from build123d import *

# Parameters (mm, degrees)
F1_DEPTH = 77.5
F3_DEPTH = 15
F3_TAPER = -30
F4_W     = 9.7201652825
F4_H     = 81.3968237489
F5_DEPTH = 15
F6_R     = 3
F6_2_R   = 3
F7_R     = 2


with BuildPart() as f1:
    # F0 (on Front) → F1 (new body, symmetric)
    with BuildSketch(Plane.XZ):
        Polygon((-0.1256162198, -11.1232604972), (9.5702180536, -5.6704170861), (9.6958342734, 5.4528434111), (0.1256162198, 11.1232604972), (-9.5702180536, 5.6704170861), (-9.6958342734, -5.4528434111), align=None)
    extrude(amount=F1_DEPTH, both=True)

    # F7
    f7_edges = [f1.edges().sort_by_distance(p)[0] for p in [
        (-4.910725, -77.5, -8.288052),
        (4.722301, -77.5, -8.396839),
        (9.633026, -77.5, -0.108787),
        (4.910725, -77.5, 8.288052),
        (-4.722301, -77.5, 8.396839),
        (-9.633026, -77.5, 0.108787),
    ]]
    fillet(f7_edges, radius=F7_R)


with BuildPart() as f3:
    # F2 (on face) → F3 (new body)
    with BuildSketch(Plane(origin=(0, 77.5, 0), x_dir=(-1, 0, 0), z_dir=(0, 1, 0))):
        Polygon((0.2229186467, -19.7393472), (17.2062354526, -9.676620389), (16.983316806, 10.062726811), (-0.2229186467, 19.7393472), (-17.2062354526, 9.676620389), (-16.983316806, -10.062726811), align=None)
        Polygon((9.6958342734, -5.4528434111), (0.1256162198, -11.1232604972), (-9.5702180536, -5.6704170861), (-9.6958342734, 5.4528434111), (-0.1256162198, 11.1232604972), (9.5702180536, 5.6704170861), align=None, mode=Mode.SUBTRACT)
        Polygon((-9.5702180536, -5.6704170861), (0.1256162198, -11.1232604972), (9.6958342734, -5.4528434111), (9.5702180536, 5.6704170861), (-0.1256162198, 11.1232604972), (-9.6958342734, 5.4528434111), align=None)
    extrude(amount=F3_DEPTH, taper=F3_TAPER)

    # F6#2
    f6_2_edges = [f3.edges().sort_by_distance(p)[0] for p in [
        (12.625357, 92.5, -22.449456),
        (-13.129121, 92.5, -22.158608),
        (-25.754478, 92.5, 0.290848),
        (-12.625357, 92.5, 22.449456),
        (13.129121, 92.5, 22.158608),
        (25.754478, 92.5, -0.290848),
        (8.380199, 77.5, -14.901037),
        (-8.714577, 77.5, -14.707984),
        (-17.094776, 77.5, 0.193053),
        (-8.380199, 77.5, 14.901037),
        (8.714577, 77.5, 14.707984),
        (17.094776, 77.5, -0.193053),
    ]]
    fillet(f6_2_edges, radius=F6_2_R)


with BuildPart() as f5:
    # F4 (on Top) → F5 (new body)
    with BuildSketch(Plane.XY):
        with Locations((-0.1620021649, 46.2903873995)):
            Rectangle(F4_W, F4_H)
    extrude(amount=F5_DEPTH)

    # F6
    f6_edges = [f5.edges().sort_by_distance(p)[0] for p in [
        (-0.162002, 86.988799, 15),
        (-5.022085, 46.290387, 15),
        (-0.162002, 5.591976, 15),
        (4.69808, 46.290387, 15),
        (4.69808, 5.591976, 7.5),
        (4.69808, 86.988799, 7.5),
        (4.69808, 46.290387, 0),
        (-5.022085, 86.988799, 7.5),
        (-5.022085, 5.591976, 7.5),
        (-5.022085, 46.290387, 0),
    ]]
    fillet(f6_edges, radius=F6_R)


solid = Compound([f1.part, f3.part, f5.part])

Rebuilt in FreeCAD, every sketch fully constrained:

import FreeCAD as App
import Part
import Sketcher

V = App.Vector


def edges_at(feature, points):
    """Names of the edges that pass closest to the given points."""
    edges = feature.Shape.Edges
    near = lambda p: min(range(len(edges)), key=lambda i: edges[i].distToShape(Part.Vertex(*p))[0])
    return sorted({f"Edge{near(p) + 1}" for p in points})

doc = App.newDocument("Part")
body = doc.addObject("PartDesign::Body", "Body")

# Sketch on XZ plane
sketch1 = body.newObject("Sketcher::SketchObject", "Sketch")
sketch1.AttachmentSupport = (doc.getObject("XZ_Plane"), [""])
sketch1.MapMode = "FlatFace"
sketch1.addGeometry([
    Part.LineSegment(V(0, -11, 0), V(10, -6, 0)),  # 0
    Part.LineSegment(V(10, -6, 0), V(10, 5, 0)),  # 1
    Part.LineSegment(V(10, 5, 0), V(0, 11, 0)),  # 2
    Part.LineSegment(V(0, 11, 0), V(-10, 6, 0)),  # 3
    Part.LineSegment(V(-10, 6, 0), V(-10, -5, 0)),  # 4
    Part.LineSegment(V(-10, -5, 0), V(0, -11, 0)),  # 5
], False)
sketch1.addConstraint([
    Sketcher.Constraint("Coincident", 0, 2, 1, 1),
    Sketcher.Constraint("Coincident", 1, 2, 2, 1),
    Sketcher.Constraint("Coincident", 2, 2, 3, 1),
    Sketcher.Constraint("Coincident", 3, 2, 4, 1),
    Sketcher.Constraint("Coincident", 4, 2, 5, 1),
    Sketcher.Constraint("Coincident", 5, 2, 0, 1),
    Sketcher.Constraint("Symmetric", 0, 2, 3, 2, -1, 1),
    Sketcher.Constraint("Symmetric", 1, 2, 4, 2, -1, 1),
    Sketcher.Constraint("Symmetric", 2, 2, 5, 2, -1, 1),
    Sketcher.Constraint("Equal", 0, 1),
    Sketcher.Constraint("Equal", 1, 2),
    Sketcher.Constraint("DistanceX", 2, 2, 0, 2, 9.444602),
    Sketcher.Constraint("Distance", 0, 11.12397),
    Sketcher.Constraint("DistanceX", -1, 1, 0, 2, 9.570218),
    Sketcher.Constraint("DistanceY", -1, 1, 2, 2, 11.12326),
])
pad1 = body.newObject("PartDesign::Pad", "Pad")
pad1.Profile = sketch1
pad1.Length = 155
pad1.Midplane = True
doc.recompute()

fillet = body.newObject("PartDesign::Fillet", "Fillet")
fillet.Base = (pad1, edges_at(pad1, [
    (-4.911, -77.5, -8.288),
    (4.722, -77.5, -8.397),
    (9.633, -77.5, -0.109),
    (4.911, -77.5, 8.288),
    (-4.722, -77.5, 8.397),
    (-9.633, -77.5, 0.109),
]))
fillet.Radius = 2
body2 = doc.addObject("PartDesign::Body", "Body001")

# Sketch on XZ plane
sketch2 = body2.newObject("Sketcher::SketchObject", "Sketch001")
sketch2.AttachmentSupport = (doc.getObject("XZ_Plane001"), [""])
sketch2.MapMode = "FlatFace"
sketch2.AttachmentOffset = App.Placement(V(0, 0, -77.5), App.Rotation())
sketch2.addGeometry([
    Part.LineSegment(V(0, -20, 0), V(-17, -10, 0)),  # 0
    Part.LineSegment(V(-17, -10, 0), V(-17, 10, 0)),  # 1
    Part.LineSegment(V(-17, 10, 0), V(0, 20, 0)),  # 2
    Part.LineSegment(V(0, 20, 0), V(17, 10, 0)),  # 3
    Part.LineSegment(V(17, 10, 0), V(17, -10, 0)),  # 4
    Part.LineSegment(V(17, -10, 0), V(0, -20, 0)),  # 5
], False)
sketch2.addConstraint([
    Sketcher.Constraint("Coincident", 0, 2, 1, 1),
    Sketcher.Constraint("Coincident", 1, 2, 2, 1),
    Sketcher.Constraint("Coincident", 2, 2, 3, 1),
    Sketcher.Constraint("Coincident", 3, 2, 4, 1),
    Sketcher.Constraint("Coincident", 4, 2, 5, 1),
    Sketcher.Constraint("Coincident", 5, 2, 0, 1),
    Sketcher.Constraint("Symmetric", 0, 2, 3, 2, -1, 1),
    Sketcher.Constraint("Symmetric", 1, 2, 4, 2, -1, 1),
    Sketcher.Constraint("Symmetric", 2, 2, 5, 2, -1, 1),
    Sketcher.Constraint("Equal", 0, 1),
    Sketcher.Constraint("Equal", 1, 2),
    Sketcher.Constraint("DistanceX", 2, 2, 4, 2, 16.760398),
    Sketcher.Constraint("DistanceY", 0, 2, -1, 1, 9.67662),
    Sketcher.Constraint("DistanceX", -1, 1, 2, 2, 0.222919),
    Sketcher.Constraint("DistanceX", 0, 2, 1, 2, 0.222919),
])
pad2 = body2.newObject("PartDesign::Pad", "Pad001")
pad2.Profile = sketch2
pad2.Length = 15
pad2.Reversed = True
pad2.TaperAngle = 30
doc.recompute()

fillet2 = body2.newObject("PartDesign::Fillet", "Fillet001")
fillet2.Base = (pad2, edges_at(pad2, [
    (12.625, 92.5, -22.449),
    (-13.129, 92.5, -22.159),
    (-25.754, 92.5, 0.291),
    (-12.625, 92.5, 22.449),
    (13.129, 92.5, 22.159),
    (25.754, 92.5, -0.291),
    (8.38, 77.5, -14.901),
    (-8.715, 77.5, -14.708),
    (-17.095, 77.5, 0.193),
    (-8.38, 77.5, 14.901),
    (8.715, 77.5, 14.708),
    (17.095, 77.5, -0.193),
]))
fillet2.Radius = 3
body3 = doc.addObject("PartDesign::Body", "Body002")

# Sketch on XY plane
sketch3 = body3.newObject("Sketcher::SketchObject", "Sketch002")
sketch3.AttachmentSupport = (doc.getObject("XY_Plane002"), [""])
sketch3.MapMode = "FlatFace"
sketch3.addGeometry([
    Part.LineSegment(V(-5, 87, 0), V(-5, 6, 0)),
    Part.LineSegment(V(-5, 6, 0), V(5, 6, 0)),
    Part.LineSegment(V(5, 6, 0), V(5, 87, 0)),
    Part.LineSegment(V(5, 87, 0), V(-5, 87, 0)),
], False)
sketch3.addConstraint([
    Sketcher.Constraint("Coincident", 0, 2, 1, 1),
    Sketcher.Constraint("Coincident", 1, 2, 2, 1),
    Sketcher.Constraint("Coincident", 2, 2, 3, 1),
    Sketcher.Constraint("Coincident", 3, 2, 0, 1),
    Sketcher.Constraint("Vertical", 0),
    Sketcher.Constraint("Horizontal", 1),
    Sketcher.Constraint("Vertical", 2),
    Sketcher.Constraint("Horizontal", 3),
    Sketcher.Constraint("DistanceY", -1, 1, 2, 2, 86.988799),
    Sketcher.Constraint("DistanceX", 1, 1, 1, 2, 9.720165),
    Sketcher.Constraint("DistanceY", 0, 2, 0, 1, 81.396824),
    Sketcher.Constraint("DistanceX", -1, 1, 1, 2, 4.69808),
])
pad3 = body3.newObject("PartDesign::Pad", "Pad002")
pad3.Profile = sketch3
pad3.Length = 15
doc.recompute()

fillet3 = body3.newObject("PartDesign::Fillet", "Fillet002")
fillet3.Base = (pad3, edges_at(pad3, [
    (-0.162, 86.989, 15),
    (-5.022, 46.29, 15),
    (-0.162, 5.592, 15),
    (4.698, 46.29, 15),
    (4.698, 5.592, 7.5),
    (4.698, 86.989, 7.5),
    (4.698, 46.29, 0),
    (-5.022, 86.989, 7.5),
    (-5.022, 5.592, 7.5),
    (-5.022, 46.29, 0),
]))
fillet3.Radius = 3

doc.recompute()
